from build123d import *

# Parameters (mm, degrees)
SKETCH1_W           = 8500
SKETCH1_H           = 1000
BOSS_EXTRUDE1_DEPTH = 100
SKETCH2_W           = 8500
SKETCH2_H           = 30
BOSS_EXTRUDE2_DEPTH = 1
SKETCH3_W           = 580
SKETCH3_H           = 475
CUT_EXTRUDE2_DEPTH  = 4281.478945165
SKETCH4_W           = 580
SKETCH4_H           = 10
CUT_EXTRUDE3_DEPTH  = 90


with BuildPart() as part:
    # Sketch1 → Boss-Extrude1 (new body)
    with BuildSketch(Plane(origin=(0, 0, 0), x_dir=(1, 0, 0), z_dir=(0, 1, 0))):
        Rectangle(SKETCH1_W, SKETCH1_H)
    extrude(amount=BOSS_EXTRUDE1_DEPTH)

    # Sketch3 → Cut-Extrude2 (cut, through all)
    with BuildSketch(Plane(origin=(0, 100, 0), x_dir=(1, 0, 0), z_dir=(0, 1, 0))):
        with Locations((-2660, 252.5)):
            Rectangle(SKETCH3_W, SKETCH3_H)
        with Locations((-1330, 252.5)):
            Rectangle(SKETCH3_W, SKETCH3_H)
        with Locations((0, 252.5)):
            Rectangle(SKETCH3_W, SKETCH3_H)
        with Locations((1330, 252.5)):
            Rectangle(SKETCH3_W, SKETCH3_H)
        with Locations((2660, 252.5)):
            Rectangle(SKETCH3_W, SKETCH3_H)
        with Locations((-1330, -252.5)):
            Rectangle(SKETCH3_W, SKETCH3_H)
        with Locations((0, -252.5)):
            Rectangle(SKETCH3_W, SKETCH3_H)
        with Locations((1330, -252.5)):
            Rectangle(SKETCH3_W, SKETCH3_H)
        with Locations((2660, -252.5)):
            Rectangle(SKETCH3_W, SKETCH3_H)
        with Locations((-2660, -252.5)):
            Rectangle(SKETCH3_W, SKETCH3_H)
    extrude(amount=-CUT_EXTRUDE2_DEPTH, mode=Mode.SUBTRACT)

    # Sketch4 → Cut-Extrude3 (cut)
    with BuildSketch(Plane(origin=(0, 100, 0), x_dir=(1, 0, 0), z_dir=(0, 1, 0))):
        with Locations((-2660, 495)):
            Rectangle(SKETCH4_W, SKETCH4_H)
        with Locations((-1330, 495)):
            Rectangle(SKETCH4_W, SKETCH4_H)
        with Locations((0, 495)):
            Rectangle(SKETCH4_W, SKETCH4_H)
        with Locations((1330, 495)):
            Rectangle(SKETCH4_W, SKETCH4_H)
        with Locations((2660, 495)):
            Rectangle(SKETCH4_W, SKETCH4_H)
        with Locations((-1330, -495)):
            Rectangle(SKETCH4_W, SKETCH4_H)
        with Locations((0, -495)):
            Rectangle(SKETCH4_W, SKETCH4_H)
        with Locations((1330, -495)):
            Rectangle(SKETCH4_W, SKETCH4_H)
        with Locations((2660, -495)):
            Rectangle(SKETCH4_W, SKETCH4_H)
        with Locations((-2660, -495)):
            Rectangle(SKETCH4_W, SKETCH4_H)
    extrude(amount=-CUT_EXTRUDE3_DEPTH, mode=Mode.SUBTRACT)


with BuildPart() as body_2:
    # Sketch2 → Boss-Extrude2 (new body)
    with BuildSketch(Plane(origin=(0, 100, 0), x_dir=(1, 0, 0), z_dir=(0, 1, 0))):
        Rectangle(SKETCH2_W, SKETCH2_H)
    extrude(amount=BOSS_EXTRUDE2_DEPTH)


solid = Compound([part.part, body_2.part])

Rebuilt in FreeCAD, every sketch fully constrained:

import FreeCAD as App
import Part
import Sketcher

V = App.Vector

doc = App.newDocument("Part")
body = doc.addObject("PartDesign::Body", "Body")

# Sketch on XZ plane
sketch1 = doc.addObject("Sketcher::SketchObject", "Sketch")
body.addObject(sketch1)
sketch1.AttachmentSupport = (doc.XZ_Plane, [""])
sketch1.MapMode = "FlatFace"
sketch1.addGeometry([
    Part.LineSegment(V(-4250, -500, 0), V(-4250, 500, 0)),
    Part.LineSegment(V(-4250, 500, 0), V(4250, 500, 0)),
    Part.LineSegment(V(4250, 500, 0), V(4250, -500, 0)),
    Part.LineSegment(V(4250, -500, 0), V(-4250, -500, 0)),
], False)
sketch1.addConstraint([
    Sketcher.Constraint("Coincident", 0, 2, 1, 1),
    Sketcher.Constraint("Coincident", 1, 2, 2, 1),
    Sketcher.Constraint("Coincident", 2, 2, 3, 1),
    Sketcher.Constraint("Coincident", 3, 2, 0, 1),
    Sketcher.Constraint("Vertical", 0),
    Sketcher.Constraint("Horizontal", 1),
    Sketcher.Constraint("Vertical", 2),
    Sketcher.Constraint("Horizontal", 3),
    Sketcher.Constraint("Symmetric", 0, 2, 2, 2, -1, 1),
    Sketcher.Constraint("DistanceX", 1, 1, 1, 2, 8500.0),
    Sketcher.Constraint("DistanceY", 0, 1, 0, 2, 1000.0),
])
pad1 = doc.addObject("PartDesign::Pad", "Pad")
body.addObject(pad1)
pad1.Profile = sketch1
pad1.Length = 100
pad1.Reversed = True

# Sketch on XZ plane
sketch2 = doc.addObject("Sketcher::SketchObject", "Sketch001")
body.addObject(sketch2)
sketch2.AttachmentSupport = (doc.XZ_Plane, [""])
sketch2.MapMode = "FlatFace"
sketch2.AttachmentOffset = App.Placement(V(0, 0, -100), App.Rotation())
sketch2.addGeometry([
    Part.LineSegment(V(-2950, -490, 0), V(-2950, -15, 0)),  # 0
    Part.LineSegment(V(-2950, -15, 0), V(-2370, -15, 0)),  # 1
    Part.LineSegment(V(-2370, -15, 0), V(-2370, -490, 0)),  # 2
    Part.LineSegment(V(-2370, -490, 0), V(-2950, -490, 0)),  # 3
    Part.LineSegment(V(-1620, -490, 0), V(-1620, -15, 0)),  # 4
    Part.LineSegment(V(-1620, -15, 0), V(-1040, -15, 0)),  # 5
    Part.LineSegment(V(-1040, -15, 0), V(-1040, -490, 0)),  # 6
    Part.LineSegment(V(-1040, -490, 0), V(-1620, -490, 0)),  # 7
    Part.LineSegment(V(-290, -490, 0), V(-290, -15, 0)),  # 8
    Part.LineSegment(V(-290, -15, 0), V(290, -15, 0)),  # 9
    Part.LineSegment(V(290, -15, 0), V(290, -490, 0)),  # 10
    Part.LineSegment(V(290, -490, 0), V(-290, -490, 0)),  # 11
    Part.LineSegment(V(1040, -490, 0), V(1040, -15, 0)),  # 12
    Part.LineSegment(V(1040, -15, 0), V(1620, -15, 0)),  # 13
    Part.LineSegment(V(1620, -15, 0), V(1620, -490, 0)),  # 14
    Part.LineSegment(V(1620, -490, 0), V(1040, -490, 0)),  # 15
    Part.LineSegment(V(2370, -490, 0), V(2370, -15, 0)),  # 16
    Part.LineSegment(V(2370, -15, 0), V(2950, -15, 0)),  # 17
    Part.LineSegment(V(2950, -15, 0), V(2950, -490, 0)),  # 18
    Part.LineSegment(V(2950, -490, 0), V(2370, -490, 0)),  # 19
    Part.LineSegment(V(-1620, 15, 0), V(-1620, 490, 0)),  # 20
    Part.LineSegment(V(-1620, 490, 0), V(-1040, 490, 0)),  # 21
    Part.LineSegment(V(-1040, 490, 0), V(-1040, 15, 0)),  # 22
    Part.LineSegment(V(-1040, 15, 0), V(-1620, 15, 0)),  # 23
    Part.LineSegment(V(-290, 15, 0), V(-290, 490, 0)),  # 24
    Part.LineSegment(V(-290, 490, 0), V(290, 490, 0)),  # 25
    Part.LineSegment(V(290, 490, 0), V(290, 15, 0)),  # 26
    Part.LineSegment(V(290, 15, 0), V(-290, 15, 0)),  # 27
    Part.LineSegment(V(1040, 15, 0), V(1040, 490, 0)),  # 28
    Part.LineSegment(V(1040, 490, 0), V(1620, 490, 0)),  # 29
    Part.LineSegment(V(1620, 490, 0), V(1620, 15, 0)),  # 30
    Part.LineSegment(V(1620, 15, 0), V(1040, 15, 0)),  # 31
    Part.LineSegment(V(2370, 15, 0), V(2370, 490, 0)),  # 32
    Part.LineSegment(V(2370, 490, 0), V(2950, 490, 0)),  # 33
    Part.LineSegment(V(2950, 490, 0), V(2950, 15, 0)),  # 34
    Part.LineSegment(V(2950, 15, 0), V(2370, 15, 0)),  # 35
    Part.LineSegment(V(-2950, 15, 0), V(-2950, 490, 0)),  # 36
    Part.LineSegment(V(-2950, 490, 0), V(-2370, 490, 0)),  # 37
    Part.LineSegment(V(-2370, 490, 0), V(-2370, 15, 0)),  # 38
    Part.LineSegment(V(-2370, 15, 0), V(-2950, 15, 0)),  # 39
], False)
sketch2.addConstraint([
    Sketcher.Constraint("Coincident", 0, 2, 1, 1),
    Sketcher.Constraint("Coincident", 1, 2, 2, 1),
    Sketcher.Constraint("Coincident", 2, 2, 3, 1),
    Sketcher.Constraint("Coincident", 3, 2, 0, 1),
    Sketcher.Constraint("Coincident", 4, 2, 5, 1),
    Sketcher.Constraint("Coincident", 5, 2, 6, 1),
    Sketcher.Constraint("Coincident", 6, 2, 7, 1),
    Sketcher.Constraint("Coincident", 7, 2, 4, 1),
    Sketcher.Constraint("Coincident", 8, 2, 9, 1),
    Sketcher.Constraint("Coincident", 9, 2, 10, 1),
    Sketcher.Constraint("Coincident", 10, 2, 11, 1),
    Sketcher.Constraint("Coincident", 11, 2, 8, 1),
    Sketcher.Constraint("Coincident", 12, 2, 13, 1),
    Sketcher.Constraint("Coincident", 13, 2, 14, 1),
    Sketcher.Constraint("Coincident", 14, 2, 15, 1),
    Sketcher.Constraint("Coincident", 15, 2, 12, 1),
    Sketcher.Constraint("Coincident", 16, 2, 17, 1),
    Sketcher.Constraint("Coincident", 17, 2, 18, 1),
    Sketcher.Constraint("Coincident", 18, 2, 19, 1),
    Sketcher.Constraint("Coincident", 19, 2, 16, 1),
    Sketcher.Constraint("Coincident", 20, 2, 21, 1),
    Sketcher.Constraint("Coincident", 21, 2, 22, 1),
    Sketcher.Constraint("Coincident", 22, 2, 23, 1),
    Sketcher.Constraint("Coincident", 23, 2, 20, 1),
    Sketcher.Constraint("Coincident", 24, 2, 25, 1),
    Sketcher.Constraint("Coincident", 25, 2, 26, 1),
    Sketcher.Constraint("Coincident", 26, 2, 27, 1),
    Sketcher.Constraint("Coincident", 27, 2, 24, 1),
    Sketcher.Constraint("Coincident", 28, 2, 29, 1),
    Sketcher.Constraint("Coincident", 29, 2, 30, 1),
    Sketcher.Constraint("Coincident", 30, 2, 31, 1),
    Sketcher.Constraint("Coincident", 31, 2, 28, 1),
    Sketcher.Constraint("Coincident", 32, 2, 33, 1),
    Sketcher.Constraint("Coincident", 33, 2, 34, 1),
    Sketcher.Constraint("Coincident", 34, 2, 35, 1),
    Sketcher.Constraint("Coincident", 35, 2, 32, 1),
    Sketcher.Constraint("Coincident", 36, 2, 37, 1),
    Sketcher.Constraint("Coincident", 37, 2, 38, 1),
    Sketcher.Constraint("Coincident", 38, 2, 39, 1),
    Sketcher.Constraint("Coincident", 39, 2, 36, 1),
    Sketcher.Constraint("Vertical", 0),
    Sketcher.Constraint("Horizontal", 1),
    Sketcher.Constraint("Vertical", 2),
    Sketcher.Constraint("Horizontal", 3),
    Sketcher.Constraint("Vertical", 4),
    Sketcher.Constraint("Horizontal", 5),
    Sketcher.Constraint("Vertical", 6),
    Sketcher.Constraint("Horizontal", 7),
    Sketcher.Constraint("Vertical", 8),
    Sketcher.Constraint("Horizontal", 9),
    Sketcher.Constraint("Vertical", 10),
    Sketcher.Constraint("Horizontal", 11),
    Sketcher.Constraint("Vertical", 12),
    Sketcher.Constraint("Horizontal", 13),
    Sketcher.Constraint("Vertical", 14),
    Sketcher.Constraint("Horizontal", 15),
    Sketcher.Constraint("Vertical", 16),
    Sketcher.Constraint("Horizontal", 17),
    Sketcher.Constraint("Vertical", 18),
    Sketcher.Constraint("Horizontal", 19),
    Sketcher.Constraint("Vertical", 20),
    Sketcher.Constraint("Horizontal", 21),
    Sketcher.Constraint("Vertical", 22),
    Sketcher.Constraint("Horizontal", 23),
    Sketcher.Constraint("Vertical", 24),
    Sketcher.Constraint("Horizontal", 25),
    Sketcher.Constraint("Vertical", 26),
    Sketcher.Constraint("Horizontal", 27),
    Sketcher.Constraint("Vertical", 28),
    Sketcher.Constraint("Horizontal", 29),
    Sketcher.Constraint("Vertical", 30),
    Sketcher.Constraint("Horizontal", 31),
    Sketcher.Constraint("Vertical", 32),
    Sketcher.Constraint("Horizontal", 33),
    Sketcher.Constraint("Vertical", 34),
    Sketcher.Constraint("Horizontal", 35),
    Sketcher.Constraint("Vertical", 36),
    Sketcher.Constraint("Horizontal", 37),
    Sketcher.Constraint("Vertical", 38),
    Sketcher.Constraint("Horizontal", 39),
    Sketcher.Constraint("Symmetric", 14, 2, 20, 2, -1, 1),
    Sketcher.Constraint("Symmetric", 12, 2, 22, 2, -1, 1),
    Sketcher.Constraint("Symmetric", 10, 2, 24, 2, -1, 1),
    Sketcher.Constraint("Symmetric", 8, 2, 26, 2, -1, 1),
    Sketcher.Constraint("Symmetric", 6, 2, 28, 2, -1, 1),
    Sketcher.Constraint("Symmetric", 4, 2, 30, 2, -1, 1),
    Sketcher.Constraint("Symmetric", 2, 2, 32, 2, -1, 1),
    Sketcher.Constraint("Symmetric", 0, 2, 34, 2, -1, 1),
    Sketcher.Constraint("Symmetric", 18, 2, 36, 2, -1, 1),
    Sketcher.Constraint("Symmetric", 16, 2, 38, 2, -1, 1),
    Sketcher.Constraint("Symmetric", 5, 2, 12, 2, -2),
    Sketcher.Constraint("Symmetric", 7, 2, 14, 2, -2),
    Sketcher.Constraint("Symmetric", 1, 2, 16, 2, -2),
    Sketcher.Constraint("Symmetric", 3, 2, 18, 2, -2),
    Sketcher.Constraint("Horizontal", 1, 2, 4, 2),
    Sketcher.Constraint("Horizontal", 3, 2, 6, 2),
    Sketcher.Constraint("Horizontal", 5, 2, 8, 2),
    Sketcher.Constraint("Horizontal", 7, 2, 10, 2),
    Sketcher.Constraint("Vertical", 11, 2, 24, 2),
    Sketcher.Constraint("Equal", 3, 5),
    Sketcher.Constraint("Equal", 7, 9),
    Sketcher.Constraint("DistanceX", 1, 1, 1, 2, 580.0),
    Sketcher.Constraint("DistanceY", 0, 1, 0, 2, 475.0),
    Sketcher.Constraint("DistanceX", 0, 2, -1, 1, 2950.0),
    Sketcher.Constraint("DistanceY", 0, 2, -1, 1, 15.0),
    Sketcher.Constraint("DistanceX", 4, 2, -1, 1, 1620.0),
])
pocket1 = doc.addObject("PartDesign::Pocket", "Pocket")
body.addObject(pocket1)
pocket1.Profile = sketch2
pocket1.Type = "ThroughAll"
pocket1.Reversed = True

# Sketch on XZ plane
sketch3 = doc.addObject("Sketcher::SketchObject", "Sketch002")
body.addObject(sketch3)
sketch3.AttachmentSupport = (doc.XZ_Plane, [""])
sketch3.MapMode = "FlatFace"
sketch3.AttachmentOffset = App.Placement(V(0, 0, -100), App.Rotation())
sketch3.addGeometry([
    Part.LineSegment(V(-2950, -500, 0), V(-2950, -490, 0)),  # 0
    Part.LineSegment(V(-2950, -490, 0), V(-2370, -490, 0)),  # 1
    Part.LineSegment(V(-2370, -490, 0), V(-2370, -500, 0)),  # 2
    Part.LineSegment(V(-2370, -500, 0), V(-2950, -500, 0)),  # 3
    Part.LineSegment(V(-1620, -500, 0), V(-1620, -490, 0)),  # 4
    Part.LineSegment(V(-1620, -490, 0), V(-1040, -490, 0)),  # 5
    Part.LineSegment(V(-1040, -490, 0), V(-1040, -500, 0)),  # 6
    Part.LineSegment(V(-1040, -500, 0), V(-1620, -500, 0)),  # 7
    Part.LineSegment(V(-290, -500, 0), V(-290, -490, 0)),  # 8
    Part.LineSegment(V(-290, -490, 0), V(290, -490, 0)),  # 9
    Part.LineSegment(V(290, -490, 0), V(290, -500, 0)),  # 10
    Part.LineSegment(V(290, -500, 0), V(-290, -500, 0)),  # 11
    Part.LineSegment(V(1040, -500, 0), V(1040, -490, 0)),  # 12
    Part.LineSegment(V(1040, -490, 0), V(1620, -490, 0)),  # 13
    Part.LineSegment(V(1620, -490, 0), V(1620, -500, 0)),  # 14
    Part.LineSegment(V(1620, -500, 0), V(1040, -500, 0)),  # 15
    Part.LineSegment(V(2370, -500, 0), V(2370, -490, 0)),  # 16
    Part.LineSegment(V(2370, -490, 0), V(2950, -490, 0)),  # 17
    Part.LineSegment(V(2950, -490, 0), V(2950, -500, 0)),  # 18
    Part.LineSegment(V(2950, -500, 0), V(2370, -500, 0)),  # 19
    Part.LineSegment(V(-1620, 490, 0), V(-1620, 500, 0)),  # 20
    Part.LineSegment(V(-1620, 500, 0), V(-1040, 500, 0)),  # 21
    Part.LineSegment(V(-1040, 500, 0), V(-1040, 490, 0)),  # 22
    Part.LineSegment(V(-1040, 490, 0), V(-1620, 490, 0)),  # 23
    Part.LineSegment(V(-290, 490, 0), V(-290, 500, 0)),  # 24
    Part.LineSegment(V(-290, 500, 0), V(290, 500, 0)),  # 25
    Part.LineSegment(V(290, 500, 0), V(290, 490, 0)),  # 26
    Part.LineSegment(V(290, 490, 0), V(-290, 490, 0)),  # 27
    Part.LineSegment(V(1040, 490, 0), V(1040, 500, 0)),  # 28
    Part.LineSegment(V(1040, 500, 0), V(1620, 500, 0)),  # 29
    Part.LineSegment(V(1620, 500, 0), V(1620, 490, 0)),  # 30
    Part.LineSegment(V(1620, 490, 0), V(1040, 490, 0)),  # 31
    Part.LineSegment(V(2370, 490, 0), V(2370, 500, 0)),  # 32
    Part.LineSegment(V(2370, 500, 0), V(2950, 500, 0)),  # 33
    Part.LineSegment(V(2950, 500, 0), V(2950, 490, 0)),  # 34
    Part.LineSegment(V(2950, 490, 0), V(2370, 490, 0)),  # 35
    Part.LineSegment(V(-2950, 490, 0), V(-2950, 500, 0)),  # 36
    Part.LineSegment(V(-2950, 500, 0), V(-2370, 500, 0)),  # 37
    Part.LineSegment(V(-2370, 500, 0), V(-2370, 490, 0)),  # 38
    Part.LineSegment(V(-2370, 490, 0), V(-2950, 490, 0)),  # 39
], False)
sketch3.addConstraint([
    Sketcher.Constraint("Coincident", 0, 2, 1, 1),
    Sketcher.Constraint("Coincident", 1, 2, 2, 1),
    Sketcher.Constraint("Coincident", 2, 2, 3, 1),
    Sketcher.Constraint("Coincident", 3, 2, 0, 1),
    Sketcher.Constraint("Coincident", 4, 2, 5, 1),
    Sketcher.Constraint("Coincident", 5, 2, 6, 1),
    Sketcher.Constraint("Coincident", 6, 2, 7, 1),
    Sketcher.Constraint("Coincident", 7, 2, 4, 1),
    Sketcher.Constraint("Coincident", 8, 2, 9, 1),
    Sketcher.Constraint("Coincident", 9, 2, 10, 1),
    Sketcher.Constraint("Coincident", 10, 2, 11, 1),
    Sketcher.Constraint("Coincident", 11, 2, 8, 1),
    Sketcher.Constraint("Coincident", 12, 2, 13, 1),
    Sketcher.Constraint("Coincident", 13, 2, 14, 1),
    Sketcher.Constraint("Coincident", 14, 2, 15, 1),
    Sketcher.Constraint("Coincident", 15, 2, 12, 1),
    Sketcher.Constraint("Coincident", 16, 2, 17, 1),
    Sketcher.Constraint("Coincident", 17, 2, 18, 1),
    Sketcher.Constraint("Coincident", 18, 2, 19, 1),
    Sketcher.Constraint("Coincident", 19, 2, 16, 1),
    Sketcher.Constraint("Coincident", 20, 2, 21, 1),
    Sketcher.Constraint("Coincident", 21, 2, 22, 1),
    Sketcher.Constraint("Coincident", 22, 2, 23, 1),
    Sketcher.Constraint("Coincident", 23, 2, 20, 1),
    Sketcher.Constraint("Coincident", 24, 2, 25, 1),
    Sketcher.Constraint("Coincident", 25, 2, 26, 1),
    Sketcher.Constraint("Coincident", 26, 2, 27, 1),
    Sketcher.Constraint("Coincident", 27, 2, 24, 1),
    Sketcher.Constraint("Coincident", 28, 2, 29, 1),
    Sketcher.Constraint("Coincident", 29, 2, 30, 1),
    Sketcher.Constraint("Coincident", 30, 2, 31, 1),
    Sketcher.Constraint("Coincident", 31, 2, 28, 1),
    Sketcher.Constraint("Coincident", 32, 2, 33, 1),
    Sketcher.Constraint("Coincident", 33, 2, 34, 1),
    Sketcher.Constraint("Coincident", 34, 2, 35, 1),
    Sketcher.Constraint("Coincident", 35, 2, 32, 1),
    Sketcher.Constraint("Coincident", 36, 2, 37, 1),
    Sketcher.Constraint("Coincident", 37, 2, 38, 1),
    Sketcher.Constraint("Coincident", 38, 2, 39, 1),
    Sketcher.Constraint("Coincident", 39, 2, 36, 1),
    Sketcher.Constraint("Vertical", 0),
    Sketcher.Constraint("Horizontal", 1),
    Sketcher.Constraint("Vertical", 2),
    Sketcher.Constraint("Horizontal", 3),
    Sketcher.Constraint("Vertical", 4),
    Sketcher.Constraint("Horizontal", 5),
    Sketcher.Constraint("Vertical", 6),
    Sketcher.Constraint("Horizontal", 7),
    Sketcher.Constraint("Vertical", 8),
    Sketcher.Constraint("Horizontal", 9),
    Sketcher.Constraint("Vertical", 10),
    Sketcher.Constraint("Horizontal", 11),
    Sketcher.Constraint("Vertical", 12),
    Sketcher.Constraint("Horizontal", 13),
    Sketcher.Constraint("Vertical", 14),
    Sketcher.Constraint("Horizontal", 15),
    Sketcher.Constraint("Vertical", 16),
    Sketcher.Constraint("Horizontal", 17),
    Sketcher.Constraint("Vertical", 18),
    Sketcher.Constraint("Horizontal", 19),
    Sketcher.Constraint("Vertical", 20),
    Sketcher.Constraint("Horizontal", 21),
    Sketcher.Constraint("Vertical", 22),
    Sketcher.Constraint("Horizontal", 23),
    Sketcher.Constraint("Vertical", 24),
    Sketcher.Constraint("Horizontal", 25),
    Sketcher.Constraint("Vertical", 26),
    Sketcher.Constraint("Horizontal", 27),
    Sketcher.Constraint("Vertical", 28),
    Sketcher.Constraint("Horizontal", 29),
    Sketcher.Constraint("Vertical", 30),
    Sketcher.Constraint("Horizontal", 31),
    Sketcher.Constraint("Vertical", 32),
    Sketcher.Constraint("Horizontal", 33),
    Sketcher.Constraint("Vertical", 34),
    Sketcher.Constraint("Horizontal", 35),
    Sketcher.Constraint("Vertical", 36),
    Sketcher.Constraint("Horizontal", 37),
    Sketcher.Constraint("Vertical", 38),
    Sketcher.Constraint("Horizontal", 39),
    Sketcher.Constraint("Symmetric", 14, 2, 20, 2, -1, 1),
    Sketcher.Constraint("Symmetric", 12, 2, 22, 2, -1, 1),
    Sketcher.Constraint("Symmetric", 10, 2, 24, 2, -1, 1),
    Sketcher.Constraint("Symmetric", 8, 2, 26, 2, -1, 1),
    Sketcher.Constraint("Symmetric", 6, 2, 28, 2, -1, 1),
    Sketcher.Constraint("Symmetric", 4, 2, 30, 2, -1, 1),
    Sketcher.Constraint("Symmetric", 2, 2, 32, 2, -1, 1),
    Sketcher.Constraint("Symmetric", 0, 2, 34, 2, -1, 1),
    Sketcher.Constraint("Symmetric", 18, 2, 36, 2, -1, 1),
    Sketcher.Constraint("Symmetric", 16, 2, 38, 2, -1, 1),
    Sketcher.Constraint("Symmetric", 5, 2, 12, 2, -2),
    Sketcher.Constraint("Symmetric", 7, 2, 14, 2, -2),
    Sketcher.Constraint("Symmetric", 1, 2, 16, 2, -2),
    Sketcher.Constraint("Symmetric", 3, 2, 18, 2, -2),
    Sketcher.Constraint("Horizontal", 1, 2, 4, 2),
    Sketcher.Constraint("Horizontal", 3, 2, 6, 2),
    Sketcher.Constraint("Horizontal", 5, 2, 8, 2),
    Sketcher.Constraint("Horizontal", 7, 2, 10, 2),
    Sketcher.Constraint("Vertical", 11, 2, 24, 2),
    Sketcher.Constraint("Equal", 3, 5),
    Sketcher.Constraint("Equal", 7, 9),
    Sketcher.Constraint("DistanceX", 1, 1, 1, 2, 580.0),
    Sketcher.Constraint("DistanceY", 0, 1, 0, 2, 10.0),
    Sketcher.Constraint("DistanceX", 0, 2, -1, 1, 2950.0),
    Sketcher.Constraint("DistanceY", 0, 2, -1, 1, 490.0),
    Sketcher.Constraint("DistanceX", 4, 2, -1, 1, 1620.0),
])
pocket2 = doc.addObject("PartDesign::Pocket", "Pocket001")
body.addObject(pocket2)
pocket2.Profile = sketch3
pocket2.Length = 90
pocket2.Reversed = True
body2 = doc.addObject("PartDesign::Body", "Body001")

# Sketch on XZ plane
sketch4 = doc.addObject("Sketcher::SketchObject", "Sketch003")
body2.addObject(sketch4)
sketch4.AttachmentSupport = (doc.getObject("XZ_Plane001"), [""])
sketch4.MapMode = "FlatFace"
sketch4.AttachmentOffset = App.Placement(V(0, 0, -100), App.Rotation())
sketch4.addGeometry([
    Part.LineSegment(V(-4250, -15, 0), V(-4250, 15, 0)),
    Part.LineSegment(V(-4250, 15, 0), V(4250, 15, 0)),
    Part.LineSegment(V(4250, 15, 0), V(4250, -15, 0)),
    Part.LineSegment(V(4250, -15, 0), V(-4250, -15, 0)),
], False)
sketch4.addConstraint([
    Sketcher.Constraint("Coincident", 0, 2, 1, 1),
    Sketcher.Constraint("Coincident", 1, 2, 2, 1),
    Sketcher.Constraint("Coincident", 2, 2, 3, 1),
    Sketcher.Constraint("Coincident", 3, 2, 0, 1),
    Sketcher.Constraint("Vertical", 0),
    Sketcher.Constraint("Horizontal", 1),
    Sketcher.Constraint("Vertical", 2),
    Sketcher.Constraint("Horizontal", 3),
    Sketcher.Constraint("Symmetric", 0, 2, 2, 2, -1, 1),
    Sketcher.Constraint("DistanceX", 1, 1, 1, 2, 8500.0),
    Sketcher.Constraint("DistanceY", 0, 1, 0, 2, 30.0),
])
pad2 = doc.addObject("PartDesign::Pad", "Pad001")
body2.addObject(pad2)
pad2.Profile = sketch4
pad2.Length = 1
pad2.Reversed = True

doc.recompute()
